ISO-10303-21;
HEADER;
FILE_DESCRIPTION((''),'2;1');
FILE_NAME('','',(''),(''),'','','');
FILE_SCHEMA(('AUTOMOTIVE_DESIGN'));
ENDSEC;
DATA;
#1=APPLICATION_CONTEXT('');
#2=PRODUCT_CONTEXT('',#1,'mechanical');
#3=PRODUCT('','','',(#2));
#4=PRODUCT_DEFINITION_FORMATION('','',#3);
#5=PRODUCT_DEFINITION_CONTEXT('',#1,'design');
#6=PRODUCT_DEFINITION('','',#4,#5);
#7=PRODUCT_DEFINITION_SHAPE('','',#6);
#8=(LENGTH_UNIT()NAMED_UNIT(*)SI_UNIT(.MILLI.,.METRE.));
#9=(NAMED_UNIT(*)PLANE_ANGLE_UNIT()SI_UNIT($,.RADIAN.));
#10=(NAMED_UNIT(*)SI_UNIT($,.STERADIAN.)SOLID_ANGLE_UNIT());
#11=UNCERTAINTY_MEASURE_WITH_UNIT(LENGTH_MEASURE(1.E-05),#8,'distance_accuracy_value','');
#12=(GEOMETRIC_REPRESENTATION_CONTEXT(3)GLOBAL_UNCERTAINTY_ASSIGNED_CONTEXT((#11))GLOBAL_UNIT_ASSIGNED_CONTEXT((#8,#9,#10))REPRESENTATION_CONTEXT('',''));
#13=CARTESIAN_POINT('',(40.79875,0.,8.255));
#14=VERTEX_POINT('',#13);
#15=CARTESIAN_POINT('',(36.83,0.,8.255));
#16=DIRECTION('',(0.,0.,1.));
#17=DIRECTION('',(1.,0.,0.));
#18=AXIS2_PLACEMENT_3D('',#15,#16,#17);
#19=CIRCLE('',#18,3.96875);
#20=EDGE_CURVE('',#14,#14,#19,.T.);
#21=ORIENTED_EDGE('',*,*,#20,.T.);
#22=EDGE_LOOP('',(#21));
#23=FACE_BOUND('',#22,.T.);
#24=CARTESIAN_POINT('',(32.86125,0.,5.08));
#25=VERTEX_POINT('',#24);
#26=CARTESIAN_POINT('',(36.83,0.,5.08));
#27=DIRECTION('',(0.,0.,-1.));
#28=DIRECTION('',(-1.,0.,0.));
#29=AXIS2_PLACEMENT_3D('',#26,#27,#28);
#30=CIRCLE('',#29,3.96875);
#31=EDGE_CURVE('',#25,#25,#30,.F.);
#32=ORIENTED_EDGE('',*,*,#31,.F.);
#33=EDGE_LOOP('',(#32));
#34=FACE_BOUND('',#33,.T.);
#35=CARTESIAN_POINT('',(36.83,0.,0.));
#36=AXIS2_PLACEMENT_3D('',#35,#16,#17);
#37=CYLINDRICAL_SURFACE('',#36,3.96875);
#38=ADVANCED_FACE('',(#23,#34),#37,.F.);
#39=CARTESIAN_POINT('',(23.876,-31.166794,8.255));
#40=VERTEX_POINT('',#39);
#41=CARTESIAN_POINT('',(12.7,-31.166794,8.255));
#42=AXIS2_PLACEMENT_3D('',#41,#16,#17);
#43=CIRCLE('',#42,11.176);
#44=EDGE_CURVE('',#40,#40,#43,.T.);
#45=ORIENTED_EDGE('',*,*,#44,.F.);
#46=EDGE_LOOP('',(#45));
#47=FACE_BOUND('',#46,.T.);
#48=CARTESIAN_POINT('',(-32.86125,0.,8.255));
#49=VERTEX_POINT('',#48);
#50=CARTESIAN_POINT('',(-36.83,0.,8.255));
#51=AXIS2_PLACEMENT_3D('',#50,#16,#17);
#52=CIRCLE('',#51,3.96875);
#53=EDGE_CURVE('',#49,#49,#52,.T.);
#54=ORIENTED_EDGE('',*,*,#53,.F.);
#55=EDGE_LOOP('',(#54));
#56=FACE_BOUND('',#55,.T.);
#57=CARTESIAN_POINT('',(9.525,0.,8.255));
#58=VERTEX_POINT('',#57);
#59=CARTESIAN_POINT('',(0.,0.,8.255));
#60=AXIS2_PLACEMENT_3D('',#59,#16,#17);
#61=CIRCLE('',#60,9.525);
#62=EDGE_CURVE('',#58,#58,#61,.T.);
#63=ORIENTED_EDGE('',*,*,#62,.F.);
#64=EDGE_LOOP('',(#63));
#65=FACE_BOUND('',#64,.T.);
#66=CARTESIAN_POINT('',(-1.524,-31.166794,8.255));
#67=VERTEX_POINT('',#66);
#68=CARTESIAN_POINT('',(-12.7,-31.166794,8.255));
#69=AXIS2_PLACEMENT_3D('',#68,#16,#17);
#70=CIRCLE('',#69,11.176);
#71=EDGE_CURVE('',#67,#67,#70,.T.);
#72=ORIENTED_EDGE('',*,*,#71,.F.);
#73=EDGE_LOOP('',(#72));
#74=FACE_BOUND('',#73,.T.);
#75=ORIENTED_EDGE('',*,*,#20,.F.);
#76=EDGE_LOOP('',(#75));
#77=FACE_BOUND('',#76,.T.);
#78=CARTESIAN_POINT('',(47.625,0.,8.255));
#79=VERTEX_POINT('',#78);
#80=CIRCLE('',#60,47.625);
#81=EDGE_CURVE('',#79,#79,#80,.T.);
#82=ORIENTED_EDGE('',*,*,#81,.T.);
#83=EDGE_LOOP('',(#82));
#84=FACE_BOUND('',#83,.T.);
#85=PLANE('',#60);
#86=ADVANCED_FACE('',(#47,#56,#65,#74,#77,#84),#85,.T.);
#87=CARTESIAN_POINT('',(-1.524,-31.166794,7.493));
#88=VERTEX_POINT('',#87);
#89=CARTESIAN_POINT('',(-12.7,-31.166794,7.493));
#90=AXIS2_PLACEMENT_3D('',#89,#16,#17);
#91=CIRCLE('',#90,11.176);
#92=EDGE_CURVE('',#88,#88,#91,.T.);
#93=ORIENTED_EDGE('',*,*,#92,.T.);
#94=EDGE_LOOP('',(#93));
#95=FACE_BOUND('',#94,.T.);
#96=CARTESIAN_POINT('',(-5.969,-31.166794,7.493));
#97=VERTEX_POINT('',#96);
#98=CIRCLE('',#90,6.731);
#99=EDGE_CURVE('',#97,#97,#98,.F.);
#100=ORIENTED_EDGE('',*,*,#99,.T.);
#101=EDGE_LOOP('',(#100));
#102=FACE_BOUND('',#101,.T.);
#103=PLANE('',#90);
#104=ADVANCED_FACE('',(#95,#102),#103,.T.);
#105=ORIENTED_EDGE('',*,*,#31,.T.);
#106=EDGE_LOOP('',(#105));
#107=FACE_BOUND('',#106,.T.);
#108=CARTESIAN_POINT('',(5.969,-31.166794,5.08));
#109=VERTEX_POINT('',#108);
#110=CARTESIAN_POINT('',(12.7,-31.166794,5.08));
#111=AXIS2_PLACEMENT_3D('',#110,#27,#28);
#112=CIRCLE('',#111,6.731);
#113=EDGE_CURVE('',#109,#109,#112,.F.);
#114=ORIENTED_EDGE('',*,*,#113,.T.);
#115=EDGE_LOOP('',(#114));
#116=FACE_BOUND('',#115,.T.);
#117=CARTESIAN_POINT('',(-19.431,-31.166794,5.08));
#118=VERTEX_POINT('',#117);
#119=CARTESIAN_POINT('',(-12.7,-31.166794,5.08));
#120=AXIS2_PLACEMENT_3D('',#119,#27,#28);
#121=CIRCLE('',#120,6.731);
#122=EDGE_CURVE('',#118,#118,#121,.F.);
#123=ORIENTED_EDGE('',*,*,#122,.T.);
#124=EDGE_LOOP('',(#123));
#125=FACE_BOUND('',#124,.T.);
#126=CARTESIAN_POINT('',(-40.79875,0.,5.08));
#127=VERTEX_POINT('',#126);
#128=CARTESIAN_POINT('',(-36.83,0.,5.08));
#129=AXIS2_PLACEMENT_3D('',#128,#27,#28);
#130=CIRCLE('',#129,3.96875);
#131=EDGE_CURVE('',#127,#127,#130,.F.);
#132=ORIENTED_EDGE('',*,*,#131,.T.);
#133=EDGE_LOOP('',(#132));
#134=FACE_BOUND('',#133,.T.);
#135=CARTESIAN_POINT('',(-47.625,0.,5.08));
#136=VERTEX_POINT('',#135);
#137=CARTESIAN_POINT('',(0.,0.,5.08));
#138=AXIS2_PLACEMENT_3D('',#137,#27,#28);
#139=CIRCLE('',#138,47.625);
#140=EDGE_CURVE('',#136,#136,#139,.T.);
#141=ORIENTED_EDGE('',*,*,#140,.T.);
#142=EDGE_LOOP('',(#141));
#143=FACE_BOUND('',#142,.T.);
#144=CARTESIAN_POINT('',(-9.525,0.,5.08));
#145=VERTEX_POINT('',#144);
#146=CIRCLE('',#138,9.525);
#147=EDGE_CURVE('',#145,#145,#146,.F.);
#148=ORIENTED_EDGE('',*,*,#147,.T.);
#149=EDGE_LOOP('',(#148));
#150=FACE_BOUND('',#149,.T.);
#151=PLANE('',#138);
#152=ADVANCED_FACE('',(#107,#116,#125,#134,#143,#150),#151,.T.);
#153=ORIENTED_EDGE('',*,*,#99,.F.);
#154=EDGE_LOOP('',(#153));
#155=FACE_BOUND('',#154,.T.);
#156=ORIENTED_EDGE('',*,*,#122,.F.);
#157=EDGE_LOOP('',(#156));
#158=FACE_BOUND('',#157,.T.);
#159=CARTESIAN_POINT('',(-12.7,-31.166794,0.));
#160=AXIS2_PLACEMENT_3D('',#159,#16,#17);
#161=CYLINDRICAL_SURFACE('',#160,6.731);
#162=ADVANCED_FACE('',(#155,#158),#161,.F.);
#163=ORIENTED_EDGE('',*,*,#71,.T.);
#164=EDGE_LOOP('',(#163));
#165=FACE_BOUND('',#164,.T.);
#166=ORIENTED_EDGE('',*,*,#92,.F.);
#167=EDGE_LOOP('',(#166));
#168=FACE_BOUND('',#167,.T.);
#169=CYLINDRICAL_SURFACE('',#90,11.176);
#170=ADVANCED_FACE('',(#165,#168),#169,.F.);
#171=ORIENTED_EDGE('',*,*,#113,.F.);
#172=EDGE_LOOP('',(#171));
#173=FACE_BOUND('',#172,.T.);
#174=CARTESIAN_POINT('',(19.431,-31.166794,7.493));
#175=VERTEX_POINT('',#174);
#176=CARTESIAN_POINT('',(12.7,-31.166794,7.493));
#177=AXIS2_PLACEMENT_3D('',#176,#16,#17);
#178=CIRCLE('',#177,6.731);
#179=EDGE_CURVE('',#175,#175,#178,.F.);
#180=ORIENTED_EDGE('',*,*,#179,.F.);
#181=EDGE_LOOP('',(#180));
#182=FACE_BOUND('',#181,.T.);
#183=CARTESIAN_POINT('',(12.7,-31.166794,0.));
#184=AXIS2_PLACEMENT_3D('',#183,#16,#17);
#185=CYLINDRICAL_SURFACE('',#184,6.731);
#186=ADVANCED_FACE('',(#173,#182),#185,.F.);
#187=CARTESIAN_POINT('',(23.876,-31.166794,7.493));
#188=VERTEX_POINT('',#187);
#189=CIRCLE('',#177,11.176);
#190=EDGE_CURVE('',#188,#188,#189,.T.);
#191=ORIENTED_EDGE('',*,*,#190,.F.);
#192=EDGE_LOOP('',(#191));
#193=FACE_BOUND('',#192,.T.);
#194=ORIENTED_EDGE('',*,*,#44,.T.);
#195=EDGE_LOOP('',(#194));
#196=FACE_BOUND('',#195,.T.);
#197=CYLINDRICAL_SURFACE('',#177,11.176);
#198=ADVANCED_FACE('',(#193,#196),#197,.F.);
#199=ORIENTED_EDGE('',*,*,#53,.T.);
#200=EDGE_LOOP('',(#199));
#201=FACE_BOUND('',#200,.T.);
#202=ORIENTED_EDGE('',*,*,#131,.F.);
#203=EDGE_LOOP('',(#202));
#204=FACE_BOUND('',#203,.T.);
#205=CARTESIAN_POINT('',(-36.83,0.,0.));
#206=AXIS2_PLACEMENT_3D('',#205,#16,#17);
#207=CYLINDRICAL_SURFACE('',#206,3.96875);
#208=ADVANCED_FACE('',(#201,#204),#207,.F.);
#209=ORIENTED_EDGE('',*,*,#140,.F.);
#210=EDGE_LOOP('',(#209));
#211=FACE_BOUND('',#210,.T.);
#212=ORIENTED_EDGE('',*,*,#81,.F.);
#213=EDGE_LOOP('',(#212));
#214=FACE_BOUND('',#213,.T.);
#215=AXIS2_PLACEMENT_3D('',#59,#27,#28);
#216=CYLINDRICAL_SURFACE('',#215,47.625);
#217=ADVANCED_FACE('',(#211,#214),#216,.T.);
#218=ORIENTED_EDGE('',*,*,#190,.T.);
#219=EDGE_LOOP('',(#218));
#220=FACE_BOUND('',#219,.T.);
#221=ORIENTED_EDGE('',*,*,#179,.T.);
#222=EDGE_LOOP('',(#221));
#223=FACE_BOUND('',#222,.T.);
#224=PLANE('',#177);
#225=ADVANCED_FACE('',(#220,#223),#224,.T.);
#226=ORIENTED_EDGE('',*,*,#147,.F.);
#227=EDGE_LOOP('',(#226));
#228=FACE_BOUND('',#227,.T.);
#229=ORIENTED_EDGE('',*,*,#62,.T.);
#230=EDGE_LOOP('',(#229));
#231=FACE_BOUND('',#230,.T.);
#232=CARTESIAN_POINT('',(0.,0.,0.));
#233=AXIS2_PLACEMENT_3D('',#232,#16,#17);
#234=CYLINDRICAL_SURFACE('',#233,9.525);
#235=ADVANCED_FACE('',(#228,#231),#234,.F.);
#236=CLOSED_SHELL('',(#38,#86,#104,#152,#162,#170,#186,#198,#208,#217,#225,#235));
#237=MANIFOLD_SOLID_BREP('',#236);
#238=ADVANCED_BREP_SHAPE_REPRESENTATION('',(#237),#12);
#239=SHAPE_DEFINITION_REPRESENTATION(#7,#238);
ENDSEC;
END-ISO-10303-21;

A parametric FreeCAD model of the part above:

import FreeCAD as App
import Part
import Sketcher
from FreeCAD import Vector
Q = App.Units.Quantity

doc = App.newDocument("Part")
body = doc.addObject("PartDesign::Body", "Body")

# Sketch on XY plane
sketch1 = doc.addObject("Sketcher::SketchObject", "Sketch")
body.addObject(sketch1)
sketch1.AttachmentSupport = (doc.XY_Plane, [""])
sketch1.MapMode = "FlatFace"
sketch1.addGeometry(Part.Circle(Vector(0, 0, 0), Vector(0, 0, 1), 50), False)
sketch1.addConstraint(Sketcher.Constraint("Coincident", 0, 3, -1, 1))
sketch1.addConstraint(Sketcher.Constraint("Diameter", 0, Q("3.898 in")))
pad1 = doc.addObject("PartDesign::Pad", "Pad")
body.addObject(pad1)
pad1.Profile = sketch1
pad1.Length = Q("0.2 in")

# Sketch on XY plane
sketch2 = doc.addObject("Sketcher::SketchObject", "Sketch001")
body.addObject(sketch2)
sketch2.AttachmentSupport = (doc.XY_Plane, [""])
sketch2.MapMode = "FlatFace"
sketch2.AttachmentOffset = App.Placement(Vector(0, 0, 0.2 * 25.4), App.Rotation())
sketch2.addGeometry(Part.Circle(Vector(0, 0, 0), Vector(0, 0, 1), 48), False)
sketch2.addConstraint(Sketcher.Constraint("Coincident", 0, 3, -1, 1))
sketch2.addConstraint(Sketcher.Constraint("Diameter", 0, Q("3.75 in")))
pad2 = doc.addObject("PartDesign::Pad", "Pad001")
body.addObject(pad2)
pad2.Profile = sketch2
pad2.Length = Q("0.125 in")

# Sketch on XY plane
sketch3 = doc.addObject("Sketcher::SketchObject", "Sketch002")
body.addObject(sketch3)
sketch3.AttachmentSupport = (doc.XY_Plane, [""])
sketch3.MapMode = "FlatFace"
sketch3.AttachmentOffset = App.Placement(Vector(0, 0, 0.325 * 25.4), App.Rotation())
sketch3.addGeometry(Part.Circle(Vector(-12.7, -31.2, 0), Vector(0, 0, 1), 6.7), False)
sketch3.addGeometry(Part.Circle(Vector(12.7, -31.2, 0), Vector(0, 0, 1), 6.7), False)
sketch3.addGeometry(Part.Circle(Vector(-36.8, 0, 0), Vector(0, 0, 1), 4), False)
sketch3.addGeometry(Part.Circle(Vector(36.8, 0, 0), Vector(0, 0, 1), 4), False)
sketch3.addGeometry(Part.Circle(Vector(0, 0, 0), Vector(0, 0, 1), 9.5), False)
sketch3.addConstraint(Sketcher.Constraint("Coincident", 4, 3, -1, 1))
sketch3.addConstraint(Sketcher.Constraint("Equal", 0, 1))
sketch3.addConstraint(Sketcher.Constraint("Equal", 2, 3))
sketch3.addConstraint(Sketcher.Constraint("Symmetric", 2, 3, 3, 3, -1, 1))
sketch3.addConstraint(Sketcher.Constraint("Symmetric", 0, 3, 1, 3, -2))
sketch3.addConstraint(Sketcher.Constraint("PointOnObject", 2, 3, -1))
sketch3.addConstraint(Sketcher.Constraint("Diameter", 0, Q("0.53 in")))
sketch3.addConstraint(Sketcher.Constraint("Diameter", 4, Q("0.75 in")))
sketch3.addConstraint(Sketcher.Constraint("Diameter", 2, Q("0.3125 in")))
sketch3.addConstraint(Sketcher.Constraint("DistanceX", 0, 3, 1, 3, Q("1 in")))
sketch3.addConstraint(Sketcher.Constraint("DistanceX", 2, 3, 3, 3, Q("2.9 in")))
sketch3.addConstraint(Sketcher.Constraint("DistanceY", 0, 3, -1, 1, 31.166794))
pocket1 = doc.addObject("PartDesign::Pocket", "Pocket")
body.addObject(pocket1)
pocket1.Profile = sketch3
pocket1.Type = "ThroughAll"

# Sketch on XY plane
sketch4 = doc.addObject("Sketcher::SketchObject", "Sketch003")
body.addObject(sketch4)
sketch4.AttachmentSupport = (doc.XY_Plane, [""])
sketch4.MapMode = "FlatFace"
sketch4.addGeometry(Part.Circle(Vector(0, 0, 0), Vector(0, 0, 1), 65), False)
sketch4.addConstraint(Sketcher.Constraint("Coincident", 0, 3, -1, 1))
sketch4.addConstraint(Sketcher.Constraint("Diameter", 0, 130.84281))
pocket2 = doc.addObject("PartDesign::Pocket", "Pocket001")
body.addObject(pocket2)
pocket2.Profile = sketch4
pocket2.Length = Q("0.2 in")
pocket2.Reversed = True

# Sketch on XY plane
sketch5 = doc.addObject("Sketcher::SketchObject", "Sketch004")
body.addObject(sketch5)
sketch5.AttachmentSupport = (doc.XY_Plane, [""])
sketch5.MapMode = "FlatFace"
sketch5.AttachmentOffset = App.Placement(Vector(0, 0, 0.325 * 25.4), App.Rotation())
sketch5.addGeometry(Part.Circle(Vector(-13, -31, 0), Vector(0, 0, 1), 11), False)
sketch5.addGeometry(Part.Circle(Vector(13, -31, 0), Vector(0, 0, 1), 11), False)
sketch5.addConstraint(Sketcher.Constraint("Equal", 0, 1))
sketch5.addConstraint(Sketcher.Constraint("Symmetric", 0, 3, 1, 3, -2))
sketch5.addConstraint(Sketcher.Constraint("Diameter", 0, Q("0.88 in")))
sketch5.addConstraint(Sketcher.Constraint("DistanceX", 0, 3, 1, 3, Q("1 in")))
sketch5.addConstraint(Sketcher.Constraint("DistanceY", 0, 3, -1, 1, 31.166794))
pocket3 = doc.addObject("PartDesign::Pocket", "Pocket002")
body.addObject(pocket3)
pocket3.Profile = sketch5
pocket3.Length = Q("0.03 in")

doc.recompute()
